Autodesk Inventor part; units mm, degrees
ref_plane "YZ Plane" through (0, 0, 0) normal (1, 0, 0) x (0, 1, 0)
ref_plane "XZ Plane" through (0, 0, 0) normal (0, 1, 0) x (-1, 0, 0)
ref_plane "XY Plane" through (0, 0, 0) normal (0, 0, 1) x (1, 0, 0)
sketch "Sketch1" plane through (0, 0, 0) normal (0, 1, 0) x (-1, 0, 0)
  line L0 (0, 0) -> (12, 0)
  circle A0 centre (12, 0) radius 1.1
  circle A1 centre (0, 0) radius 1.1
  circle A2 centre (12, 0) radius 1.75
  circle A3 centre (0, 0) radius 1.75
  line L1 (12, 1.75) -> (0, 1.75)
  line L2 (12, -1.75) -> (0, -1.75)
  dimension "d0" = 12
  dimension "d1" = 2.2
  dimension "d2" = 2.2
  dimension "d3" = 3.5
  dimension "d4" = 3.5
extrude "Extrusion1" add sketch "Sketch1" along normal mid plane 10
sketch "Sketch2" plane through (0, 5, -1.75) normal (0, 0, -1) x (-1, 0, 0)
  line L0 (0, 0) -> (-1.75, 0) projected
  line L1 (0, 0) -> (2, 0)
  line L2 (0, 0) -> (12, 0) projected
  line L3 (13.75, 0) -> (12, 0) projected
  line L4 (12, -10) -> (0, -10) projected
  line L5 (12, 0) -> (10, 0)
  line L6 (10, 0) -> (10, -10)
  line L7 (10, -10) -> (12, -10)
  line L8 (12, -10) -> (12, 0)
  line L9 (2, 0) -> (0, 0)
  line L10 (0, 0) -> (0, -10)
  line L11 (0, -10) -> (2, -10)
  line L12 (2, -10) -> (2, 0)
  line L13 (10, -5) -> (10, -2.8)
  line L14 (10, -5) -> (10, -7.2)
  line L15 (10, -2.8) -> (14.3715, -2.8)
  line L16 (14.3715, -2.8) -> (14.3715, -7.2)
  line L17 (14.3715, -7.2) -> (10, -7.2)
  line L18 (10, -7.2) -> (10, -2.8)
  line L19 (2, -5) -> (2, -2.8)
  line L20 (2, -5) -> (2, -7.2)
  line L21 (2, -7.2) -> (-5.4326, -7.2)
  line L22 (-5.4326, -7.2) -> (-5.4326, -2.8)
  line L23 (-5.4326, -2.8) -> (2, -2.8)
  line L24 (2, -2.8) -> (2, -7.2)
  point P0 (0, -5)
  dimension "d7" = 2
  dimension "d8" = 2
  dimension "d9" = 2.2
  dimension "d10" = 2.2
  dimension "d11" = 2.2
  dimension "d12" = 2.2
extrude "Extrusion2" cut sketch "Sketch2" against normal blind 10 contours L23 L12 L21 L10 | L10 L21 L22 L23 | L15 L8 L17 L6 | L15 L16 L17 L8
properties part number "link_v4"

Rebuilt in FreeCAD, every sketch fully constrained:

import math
import FreeCAD as App
import Part
import Sketcher
from FreeCAD import Vector
Q = App.Units.Quantity


def add_polygon(sketch, points):
    """Adds a closed chain of lines whose ends are joined by coincident constraints."""
    first, n = sketch.GeometryCount, len(points)
    for a, b in zip(points, points[1:] + points[:1]):
        sketch.addGeometry(Part.LineSegment(App.Vector(*a, 0), App.Vector(*b, 0)), False)
    for i in range(n):
        sketch.addConstraint(Sketcher.Constraint("Coincident", first + i, 2, first + (i + 1) % n, 1))

doc = App.newDocument("Part")
body = doc.addObject("PartDesign::Body", "Body")

sketch1 = body.newObject("Sketcher::SketchObject", "Sketch")
sketch1.AttachmentSupport = (doc.getObject("XZ_Plane"), [""])
sketch1.MapMode = "FlatFace"
sketch1.addGeometry([
    Part.ArcOfCircle(Part.Circle(Vector(0, 0, 0), Vector(0, 0, 1), 1.8), math.radians(-90), math.radians(90)),
    Part.LineSegment(Vector(0, -1.8, 0), Vector(-12, -1.8, 0)),
    Part.ArcOfCircle(Part.Circle(Vector(-12, 0, 0), Vector(0, 0, 1), 1.8), math.radians(90), math.radians(270)),
    Part.LineSegment(Vector(-12, 1.8, 0), Vector(0, 1.8, 0)),
    Part.Circle(Vector(0, 0, 0), Vector(0, 0, 1), 1.1),
    Part.Circle(Vector(-12, 0, 0), Vector(0, 0, 1), 1.1),
], False)
sketch1.addConstraint([
    Sketcher.Constraint("Tangent", 0, 1, 1, 1),
    Sketcher.Constraint("Tangent", 1, 2, 2, 2),
    Sketcher.Constraint("Tangent", 2, 1, 3, 1),
    Sketcher.Constraint("Tangent", 3, 2, 0, 2),
    Sketcher.Constraint("Horizontal", 1),
    Sketcher.Constraint("Horizontal", 3),
    Sketcher.Constraint("Coincident", 0, 3, -1, 1),
    Sketcher.Constraint("Coincident", 4, 3, -1, 1),
    Sketcher.Constraint("Coincident", 5, 3, 2, 3),
    Sketcher.Constraint("Equal", 4, 5),
    Sketcher.Constraint("Diameter", 4, Q("2.2 mm")),
    Sketcher.Constraint("DistanceX", 1, 2, 1, 1, Q("12 mm")),
    Sketcher.Constraint("Radius", 0, Q("1.75 mm")),
])
pad1 = body.newObject("PartDesign::Pad", "Pad")
pad1.Profile = sketch1
pad1.Length = 10
pad1.Midplane = True

sketch2 = body.newObject("Sketcher::SketchObject", "Sketch001")
sketch2.AttachmentSupport = (doc.getObject("XY_Plane"), [""])
sketch2.MapMode = "FlatFace"
sketch2.AttachmentOffset = App.Placement(Vector(0, 0, -1.75), App.Rotation())
add_polygon(sketch2, [(-2, 2.2), (5.4, 2.2), (5.4, -2.2), (-2, -2.2)])
add_polygon(sketch2, [(-10, 2.2), (-10, -2.2), (-14.4, -2.2), (-14.4, 2.2)])
sketch2.addConstraint([
    Sketcher.Constraint("Horizontal", 0),
    Sketcher.Constraint("Vertical", 1),
    Sketcher.Constraint("Horizontal", 2),
    Sketcher.Constraint("Vertical", 3),
    Sketcher.Constraint("Vertical", 4),
    Sketcher.Constraint("Horizontal", 5),
    Sketcher.Constraint("Vertical", 6),
    Sketcher.Constraint("Horizontal", 7),
    Sketcher.Constraint("Horizontal", 2, 2, 4, 2),
    Sketcher.Constraint("Horizontal", 3, 2, 6, 2),
    Sketcher.Constraint("DistanceX", 2, 2, -1, 1, Q("2 mm")),
    Sketcher.Constraint("DistanceY", -1, 1, 0, 2, Q("2.2 mm")),
    Sketcher.Constraint("DistanceY", 1, 2, -1, 1, Q("2.2 mm")),
    Sketcher.Constraint("DistanceX", 4, 2, -1, 1, Q("10 mm")),
    Sketcher.Constraint("DistanceX", 0, 1, 0, 2, Q("7.4326 mm")),
    Sketcher.Constraint("DistanceX", 5, 2, 5, 1, Q("4.3715 mm")),
])
pocket1 = body.newObject("PartDesign::Pocket", "Pocket")
pocket1.Profile = sketch2
pocket1.Length = 10
pocket1.Reversed = True

doc.recompute()
